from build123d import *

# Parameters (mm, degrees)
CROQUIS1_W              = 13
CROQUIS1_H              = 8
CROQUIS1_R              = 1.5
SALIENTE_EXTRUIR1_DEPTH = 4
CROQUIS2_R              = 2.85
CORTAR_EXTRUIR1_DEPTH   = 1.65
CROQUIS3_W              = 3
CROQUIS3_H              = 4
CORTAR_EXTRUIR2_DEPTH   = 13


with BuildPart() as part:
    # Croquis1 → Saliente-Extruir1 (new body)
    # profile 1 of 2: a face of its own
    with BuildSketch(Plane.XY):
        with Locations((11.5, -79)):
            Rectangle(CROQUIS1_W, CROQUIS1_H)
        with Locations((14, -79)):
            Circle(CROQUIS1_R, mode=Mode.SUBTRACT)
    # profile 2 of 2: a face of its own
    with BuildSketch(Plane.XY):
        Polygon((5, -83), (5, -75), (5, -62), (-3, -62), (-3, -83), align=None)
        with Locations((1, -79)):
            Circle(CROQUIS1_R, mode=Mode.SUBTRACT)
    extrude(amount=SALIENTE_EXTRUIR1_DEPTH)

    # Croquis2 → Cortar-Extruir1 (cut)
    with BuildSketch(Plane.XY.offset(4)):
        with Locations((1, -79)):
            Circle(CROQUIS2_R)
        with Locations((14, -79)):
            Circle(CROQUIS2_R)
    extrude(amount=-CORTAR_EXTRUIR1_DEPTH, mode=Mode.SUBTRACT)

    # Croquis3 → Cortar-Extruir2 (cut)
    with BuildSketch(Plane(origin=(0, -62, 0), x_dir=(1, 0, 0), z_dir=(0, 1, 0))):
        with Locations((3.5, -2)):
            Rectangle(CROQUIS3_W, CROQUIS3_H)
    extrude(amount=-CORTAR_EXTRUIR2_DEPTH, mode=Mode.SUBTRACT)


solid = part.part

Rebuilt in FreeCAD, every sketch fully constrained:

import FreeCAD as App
import Part
import Sketcher
Q = App.Units.Quantity


def add_polygon(sketch, points):
    """Adds a closed chain of lines whose ends are joined by coincident constraints."""
    first, n = sketch.GeometryCount, len(points)
    for a, b in zip(points, points[1:] + points[:1]):
        sketch.addGeometry(Part.LineSegment(App.Vector(*a, 0), App.Vector(*b, 0)), False)
    for i in range(n):
        sketch.addConstraint(Sketcher.Constraint("Coincident", first + i, 2, first + (i + 1) % n, 1))

doc = App.newDocument("Part")
params = doc.addObject("Spreadsheet::Sheet", "Params")
for row, (alias, value) in enumerate([
    ("sketch1_diameter", "3 mm"),
    ("sketch1_width", "13 mm"),
    ("sketch1_width2", "8 mm"),
    ("pad1_length", "4 mm"),
    ("sketch2_diameter", "5.7 mm"),
    ("pocket1_length", "1.65 mm"),
    ("sketch3_width", "3 mm"),
    ("sketch3_height", "4 mm"),
    ("pocket2_length", "13 mm"),
], start=1):
    params.set(f"A{row}", alias)
    params.set(f"B{row}", "=" + value)
    params.setAlias(f"B{row}", alias)

body = doc.addObject("PartDesign::Body", "Body")

sketch1 = body.newObject("Sketcher::SketchObject", "Sketch")
sketch1.AttachmentSupport = (doc.getObject("XY_Plane"), [""])
sketch1.MapMode = "FlatFace"
add_polygon(sketch1, [(18, -83), (18, -75), (5, -75), (5, -62), (-3, -62), (-3, -83)])
sketch1.addGeometry(Part.Circle(App.Vector(14, -79, 0), App.Vector(0, 0, 1), 1.5), False)
sketch1.addGeometry(Part.Circle(App.Vector(1, -79, 0), App.Vector(0, 0, 1), 1.5), False)
sketch1.addConstraint(Sketcher.Constraint("Vertical", 0))
sketch1.addConstraint(Sketcher.Constraint("Horizontal", 1))
sketch1.addConstraint(Sketcher.Constraint("Vertical", 2))
sketch1.addConstraint(Sketcher.Constraint("Horizontal", 3))
sketch1.addConstraint(Sketcher.Constraint("Vertical", 4))
sketch1.addConstraint(Sketcher.Constraint("Horizontal", 5))
sketch1.addConstraint(Sketcher.Constraint("Equal", 6, 7))
sketch1.addConstraint(Sketcher.Constraint("Horizontal", 6, 3, 7, 3))
sketch1.addConstraint(Sketcher.Constraint("Equal", 3, 0))
sketch1.addConstraint(Sketcher.Constraint("Equal", 1, 2))
sketch1.addConstraint(Sketcher.Constraint("Diameter", 6, Q("3 mm")))
sketch1.addConstraint(Sketcher.Constraint("DistanceX", 1, 2, 1, 1, Q("13 mm")))
sketch1.addConstraint(Sketcher.Constraint("DistanceX", 3, 2, 3, 1, Q("8 mm")))
sketch1.addConstraint(Sketcher.Constraint("DistanceX", -1, 1, 6, 3, Q("14 mm")))
sketch1.addConstraint(Sketcher.Constraint("DistanceY", 6, 3, -1, 1, Q("79 mm")))
sketch1.addConstraint(Sketcher.Constraint("DistanceX", -1, 1, 7, 3, Q("1 mm")))
sketch1.addConstraint(Sketcher.Constraint("DistanceX", -1, 1, 0, 2, Q("18 mm")))
sketch1.addConstraint(Sketcher.Constraint("DistanceY", 0, 2, -1, 1, Q("75 mm")))
sketch1.setExpression("Constraints[16]", "Params.sketch1_diameter")
sketch1.setExpression("Constraints[17]", "Params.sketch1_width")
sketch1.setExpression("Constraints[18]", "Params.sketch1_width2")
pad1 = body.newObject("PartDesign::Pad", "Pad")
pad1.Profile = sketch1
pad1.setExpression("Length", "Params.pad1_length")

sketch2 = body.newObject("Sketcher::SketchObject", "Sketch001")
sketch2.AttachmentSupport = (doc.getObject("XY_Plane"), [""])
sketch2.MapMode = "FlatFace"
sketch2.AttachmentOffset = App.Placement(App.Vector(0, 0, 4), App.Rotation())
sketch2.addGeometry(Part.Circle(App.Vector(1, -79, 0), App.Vector(0, 0, 1), 2.9), False)
sketch2.addGeometry(Part.Circle(App.Vector(14, -79, 0), App.Vector(0, 0, 1), 2.9), False)
sketch2.addConstraint(Sketcher.Constraint("Equal", 0, 1))
sketch2.addConstraint(Sketcher.Constraint("Horizontal", 0, 3, 1, 3))
sketch2.addConstraint(Sketcher.Constraint("Diameter", 0, Q("5.7 mm")))
sketch2.addConstraint(Sketcher.Constraint("DistanceX", -1, 1, 0, 3, Q("1 mm")))
sketch2.addConstraint(Sketcher.Constraint("DistanceY", 0, 3, -1, 1, Q("79 mm")))
sketch2.addConstraint(Sketcher.Constraint("DistanceX", -1, 1, 1, 3, Q("14 mm")))
sketch2.setExpression("Constraints[2]", "Params.sketch2_diameter")
pocket1 = body.newObject("PartDesign::Pocket", "Pocket")
pocket1.Profile = sketch2
pocket1.setExpression("Length", "Params.pocket1_length")

sketch3 = body.newObject("Sketcher::SketchObject", "Sketch002")
sketch3.AttachmentSupport = (doc.getObject("XZ_Plane"), [""])
sketch3.MapMode = "FlatFace"
sketch3.AttachmentOffset = App.Placement(App.Vector(0, 0, 62), App.Rotation())
add_polygon(sketch3, [(2, 0), (2, 4), (5, 4), (5, 0)])
sketch3.addConstraint(Sketcher.Constraint("Vertical", 0))
sketch3.addConstraint(Sketcher.Constraint("Horizontal", 1))
sketch3.addConstraint(Sketcher.Constraint("Vertical", 2))
sketch3.addConstraint(Sketcher.Constraint("Horizontal", 3))
sketch3.addConstraint(Sketcher.Constraint("PointOnObject", 2, 2, -1))
sketch3.addConstraint(Sketcher.Constraint("DistanceX", 1, 1, 1, 2, Q("3 mm")))
sketch3.addConstraint(Sketcher.Constraint("DistanceY", 0, 1, 0, 2, Q("4 mm")))
sketch3.addConstraint(Sketcher.Constraint("DistanceX", -1, 1, 0, 2, Q("2 mm")))
sketch3.setExpression("Constraints[9]", "Params.sketch3_width")
sketch3.setExpression("Constraints[10]", "Params.sketch3_height")
pocket2 = body.newObject("PartDesign::Pocket", "Pocket001")
pocket2.Profile = sketch3
pocket2.setExpression("Length", "Params.pocket2_length")
pocket2.Reversed = True

doc.recompute()
